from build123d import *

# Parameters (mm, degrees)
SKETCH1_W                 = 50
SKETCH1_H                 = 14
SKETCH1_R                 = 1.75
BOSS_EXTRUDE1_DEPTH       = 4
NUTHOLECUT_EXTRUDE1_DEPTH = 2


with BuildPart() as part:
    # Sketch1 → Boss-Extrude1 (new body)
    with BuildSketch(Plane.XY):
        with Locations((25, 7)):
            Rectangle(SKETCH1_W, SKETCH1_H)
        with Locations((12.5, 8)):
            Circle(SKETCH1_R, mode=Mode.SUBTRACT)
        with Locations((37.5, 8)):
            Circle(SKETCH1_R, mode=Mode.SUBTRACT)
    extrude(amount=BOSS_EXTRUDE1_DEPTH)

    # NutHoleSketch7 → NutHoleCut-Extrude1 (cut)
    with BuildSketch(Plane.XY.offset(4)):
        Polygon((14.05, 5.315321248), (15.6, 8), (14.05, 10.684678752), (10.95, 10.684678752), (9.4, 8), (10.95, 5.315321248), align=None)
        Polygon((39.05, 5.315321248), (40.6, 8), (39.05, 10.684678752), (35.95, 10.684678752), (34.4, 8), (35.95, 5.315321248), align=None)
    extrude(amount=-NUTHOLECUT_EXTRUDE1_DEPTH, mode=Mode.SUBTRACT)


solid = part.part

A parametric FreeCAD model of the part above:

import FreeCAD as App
import Part
import Sketcher

V = App.Vector
Q = App.Units.Quantity


def add_polygon(sketch, points):
    """Adds a closed chain of lines whose ends are joined by coincident constraints."""
    first, n = sketch.GeometryCount, len(points)
    for a, b in zip(points, points[1:] + points[:1]):
        sketch.addGeometry(Part.LineSegment(App.Vector(*a, 0), App.Vector(*b, 0)), False)
    for i in range(n):
        sketch.addConstraint(Sketcher.Constraint("Coincident", first + i, 2, first + (i + 1) % n, 1))

doc = App.newDocument("Part")
body = doc.addObject("PartDesign::Body", "Body")

sketch1 = body.newObject("Sketcher::SketchObject", "Sketch")
sketch1.AttachmentSupport = (doc.getObject("XY_Plane"), [""])
sketch1.MapMode = "FlatFace"
add_polygon(sketch1, [(0, 14), (0, 0), (50, 0), (50, 14)])
sketch1.addGeometry(Part.Circle(V(12.5, 8, 0), V(0, 0, 1), 1.75), False)
sketch1.addGeometry(Part.Circle(V(37.5, 8, 0), V(0, 0, 1), 1.75), False)
sketch1.addConstraint([
    Sketcher.Constraint("Vertical", 0),
    Sketcher.Constraint("Horizontal", 1),
    Sketcher.Constraint("Vertical", 2),
    Sketcher.Constraint("Horizontal", 3),
    Sketcher.Constraint("Coincident", 0, 2, -1, 1),
    Sketcher.Constraint("Equal", 4, 5),
    Sketcher.Constraint("Horizontal", 4, 3, 5, 3),
    Sketcher.Constraint("Diameter", 4, Q("3.5 mm")),
    Sketcher.Constraint("DistanceX", 1, 1, 1, 2, Q("50 mm")),
    Sketcher.Constraint("DistanceY", 0, 2, 0, 1, Q("14 mm")),
    Sketcher.Constraint("DistanceY", -1, 1, 4, 3, Q("8 mm")),
    Sketcher.Constraint("DistanceX", 4, 3, 5, 3, Q("25 mm")),
    Sketcher.Constraint("DistanceX", -1, 1, 4, 3, Q("12.5 mm")),
])
pad1 = body.newObject("PartDesign::Pad", "Pad")
pad1.Profile = sketch1
pad1.Length = 4

sketch2 = body.newObject("Sketcher::SketchObject", "Sketch001")
sketch2.AttachmentSupport = (doc.getObject("XY_Plane"), [""])
sketch2.MapMode = "FlatFace"
sketch2.AttachmentOffset = App.Placement(V(0, 0, 4), App.Rotation())
add_polygon(sketch2, [(14.05, 5.315321), (15.6, 8), (14.05, 10.684679), (10.95, 10.684679), (9.4, 8), (10.95, 5.315321)])
add_polygon(sketch2, [(39.05, 5.315321), (40.6, 8), (39.05, 10.684679), (35.95, 10.684679), (34.4, 8), (35.95, 5.315321)])
sketch2.addConstraint([
    Sketcher.Constraint("Horizontal", 2),
    Sketcher.Constraint("Horizontal", 5),
    Sketcher.Constraint("Horizontal", 8),
    Sketcher.Constraint("Horizontal", 11),
    Sketcher.Constraint("Parallel", 0, 3),
    Sketcher.Constraint("Parallel", 1, 4),
    Sketcher.Constraint("Parallel", 3, 6),
    Sketcher.Constraint("Parallel", 4, 7),
    Sketcher.Constraint("Parallel", 6, 9),
    Sketcher.Constraint("Parallel", 7, 10),
    Sketcher.Constraint("Horizontal", 0, 2, 3, 2),
    Sketcher.Constraint("Horizontal", 3, 2, 6, 2),
    Sketcher.Constraint("Horizontal", 2, 2, 7, 2),
    Sketcher.Constraint("Horizontal", 6, 2, 9, 2),
    Sketcher.Constraint("Horizontal", 5, 2, 10, 2),
    Sketcher.Constraint("Vertical", 2, 2, 4, 2),
    Sketcher.Constraint("Vertical", 1, 2, 5, 2),
    Sketcher.Constraint("Equal", 5, 8),
    Sketcher.Constraint("Angle", 0, Q("60 deg")),
    Sketcher.Constraint("DistanceX", 2, 2, 2, 1, Q("3.1 mm")),
    Sketcher.Constraint("DistanceY", -1, 1, 0, 2, Q("8 mm")),
    Sketcher.Constraint("DistanceX", 0, 2, 6, 2, Q("25 mm")),
    Sketcher.Constraint("Distance", 0, Q("3.1 mm")),
    Sketcher.Constraint("DistanceX", -1, 1, 0, 2, Q("15.6 mm")),
])
pocket1 = body.newObject("PartDesign::Pocket", "Pocket")
pocket1.Profile = sketch2
pocket1.Length = 2

doc.recompute()
